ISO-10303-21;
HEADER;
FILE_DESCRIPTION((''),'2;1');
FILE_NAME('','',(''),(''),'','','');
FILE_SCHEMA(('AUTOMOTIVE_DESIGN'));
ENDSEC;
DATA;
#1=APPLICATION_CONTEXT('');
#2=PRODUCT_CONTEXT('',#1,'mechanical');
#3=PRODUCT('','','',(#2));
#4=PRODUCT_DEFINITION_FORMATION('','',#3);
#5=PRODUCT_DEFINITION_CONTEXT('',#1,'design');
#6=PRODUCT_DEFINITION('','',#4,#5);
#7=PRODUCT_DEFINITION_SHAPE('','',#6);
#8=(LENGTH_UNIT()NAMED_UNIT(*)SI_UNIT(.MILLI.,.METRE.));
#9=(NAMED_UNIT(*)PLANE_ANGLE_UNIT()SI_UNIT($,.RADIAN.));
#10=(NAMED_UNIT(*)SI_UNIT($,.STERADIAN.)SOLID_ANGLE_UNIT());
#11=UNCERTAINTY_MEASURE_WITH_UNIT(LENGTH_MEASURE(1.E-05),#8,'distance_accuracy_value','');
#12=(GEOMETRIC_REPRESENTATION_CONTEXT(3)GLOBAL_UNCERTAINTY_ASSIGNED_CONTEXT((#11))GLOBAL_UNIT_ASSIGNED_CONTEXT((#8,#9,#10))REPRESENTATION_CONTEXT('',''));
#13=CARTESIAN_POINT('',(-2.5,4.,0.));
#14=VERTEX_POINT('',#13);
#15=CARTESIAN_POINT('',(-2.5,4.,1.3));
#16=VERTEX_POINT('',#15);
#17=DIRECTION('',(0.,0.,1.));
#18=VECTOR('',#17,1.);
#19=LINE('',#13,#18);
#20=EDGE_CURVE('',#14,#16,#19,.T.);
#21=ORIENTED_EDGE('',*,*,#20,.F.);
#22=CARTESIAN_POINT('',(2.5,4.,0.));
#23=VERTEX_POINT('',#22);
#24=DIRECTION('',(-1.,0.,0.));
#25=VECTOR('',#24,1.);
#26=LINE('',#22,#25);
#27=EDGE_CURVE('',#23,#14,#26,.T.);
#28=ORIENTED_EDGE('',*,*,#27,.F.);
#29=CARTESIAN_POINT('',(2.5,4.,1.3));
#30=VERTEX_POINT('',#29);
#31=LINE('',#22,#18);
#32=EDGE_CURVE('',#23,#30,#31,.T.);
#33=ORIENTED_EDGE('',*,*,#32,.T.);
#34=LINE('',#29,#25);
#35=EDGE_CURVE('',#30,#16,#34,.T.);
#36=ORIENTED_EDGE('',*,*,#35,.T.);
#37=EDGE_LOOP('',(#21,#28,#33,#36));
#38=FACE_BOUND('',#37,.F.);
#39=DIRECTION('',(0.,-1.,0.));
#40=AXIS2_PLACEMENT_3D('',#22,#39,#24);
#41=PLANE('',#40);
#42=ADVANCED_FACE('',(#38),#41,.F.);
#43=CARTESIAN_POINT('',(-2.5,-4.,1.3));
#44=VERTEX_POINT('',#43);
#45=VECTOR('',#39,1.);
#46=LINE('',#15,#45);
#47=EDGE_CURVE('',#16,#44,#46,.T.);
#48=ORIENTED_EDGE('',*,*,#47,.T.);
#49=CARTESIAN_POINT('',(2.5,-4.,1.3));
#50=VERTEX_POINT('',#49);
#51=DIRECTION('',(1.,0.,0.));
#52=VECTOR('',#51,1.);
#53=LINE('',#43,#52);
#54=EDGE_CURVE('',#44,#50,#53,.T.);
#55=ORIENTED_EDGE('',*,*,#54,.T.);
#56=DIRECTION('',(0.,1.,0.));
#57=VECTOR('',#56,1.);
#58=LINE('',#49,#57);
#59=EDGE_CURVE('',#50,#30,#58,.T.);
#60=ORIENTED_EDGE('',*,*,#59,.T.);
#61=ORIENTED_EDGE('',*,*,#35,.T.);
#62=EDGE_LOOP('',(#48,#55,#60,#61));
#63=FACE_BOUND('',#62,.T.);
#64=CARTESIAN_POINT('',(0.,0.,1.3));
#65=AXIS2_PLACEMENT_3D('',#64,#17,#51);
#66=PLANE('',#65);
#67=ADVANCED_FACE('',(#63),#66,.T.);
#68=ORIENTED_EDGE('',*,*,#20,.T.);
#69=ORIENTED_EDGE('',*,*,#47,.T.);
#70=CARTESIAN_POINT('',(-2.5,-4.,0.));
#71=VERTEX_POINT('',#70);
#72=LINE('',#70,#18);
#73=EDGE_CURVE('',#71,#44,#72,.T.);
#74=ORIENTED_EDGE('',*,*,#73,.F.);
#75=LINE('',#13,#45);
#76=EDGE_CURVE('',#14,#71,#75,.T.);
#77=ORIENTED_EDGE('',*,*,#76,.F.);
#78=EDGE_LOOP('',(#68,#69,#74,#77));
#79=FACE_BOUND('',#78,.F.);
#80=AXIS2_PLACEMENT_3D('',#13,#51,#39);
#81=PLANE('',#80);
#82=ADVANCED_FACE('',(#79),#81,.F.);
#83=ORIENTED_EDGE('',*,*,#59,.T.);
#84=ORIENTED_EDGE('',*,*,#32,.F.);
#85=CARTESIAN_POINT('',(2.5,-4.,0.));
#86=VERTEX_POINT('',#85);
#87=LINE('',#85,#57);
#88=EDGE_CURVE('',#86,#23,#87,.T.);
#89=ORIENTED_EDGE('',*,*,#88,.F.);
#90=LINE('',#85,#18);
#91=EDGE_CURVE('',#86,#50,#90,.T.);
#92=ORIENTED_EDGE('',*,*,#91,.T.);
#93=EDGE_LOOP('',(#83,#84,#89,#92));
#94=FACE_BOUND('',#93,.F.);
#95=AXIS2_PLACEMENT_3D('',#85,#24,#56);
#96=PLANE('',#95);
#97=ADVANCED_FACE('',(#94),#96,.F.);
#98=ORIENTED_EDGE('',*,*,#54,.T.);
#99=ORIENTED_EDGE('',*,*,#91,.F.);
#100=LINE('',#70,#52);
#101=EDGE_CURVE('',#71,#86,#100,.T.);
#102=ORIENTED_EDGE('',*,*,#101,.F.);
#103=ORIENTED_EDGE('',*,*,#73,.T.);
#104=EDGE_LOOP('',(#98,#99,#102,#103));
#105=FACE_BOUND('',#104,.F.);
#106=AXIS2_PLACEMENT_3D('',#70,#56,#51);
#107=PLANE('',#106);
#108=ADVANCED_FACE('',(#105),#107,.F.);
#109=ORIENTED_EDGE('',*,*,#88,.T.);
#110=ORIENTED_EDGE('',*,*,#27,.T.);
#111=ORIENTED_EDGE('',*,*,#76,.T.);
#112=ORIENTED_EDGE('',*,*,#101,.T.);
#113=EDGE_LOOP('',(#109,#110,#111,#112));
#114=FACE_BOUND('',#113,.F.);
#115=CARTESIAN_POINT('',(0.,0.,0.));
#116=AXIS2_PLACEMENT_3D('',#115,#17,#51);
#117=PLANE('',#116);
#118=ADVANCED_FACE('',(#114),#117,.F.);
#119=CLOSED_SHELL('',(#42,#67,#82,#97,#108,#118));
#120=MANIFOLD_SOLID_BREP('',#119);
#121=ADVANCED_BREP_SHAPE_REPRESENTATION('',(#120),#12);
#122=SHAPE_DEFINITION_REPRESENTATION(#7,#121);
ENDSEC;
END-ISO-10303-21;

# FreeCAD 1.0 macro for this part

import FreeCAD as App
import Part
import Sketcher

V = App.Vector
Q = App.Units.Quantity

doc = App.newDocument("Part")
body = doc.addObject("PartDesign::Body", "Body")

# Sketch on XY plane
sketch1 = body.newObject("Sketcher::SketchObject", "Sketch")
sketch1.AttachmentSupport = (doc.getObject("XY_Plane"), [""])
sketch1.MapMode = "FlatFace"
sketch1.addGeometry([
    Part.LineSegment(V(2, -4, 0), V(2, 4, 0)),
    Part.LineSegment(V(2, 4, 0), V(-2, 4, 0)),
    Part.LineSegment(V(-2, 4, 0), V(-2, -4, 0)),
    Part.LineSegment(V(-2, -4, 0), V(2, -4, 0)),
], False)
sketch1.addConstraint([
    Sketcher.Constraint("Coincident", 0, 2, 1, 1),
    Sketcher.Constraint("Coincident", 1, 2, 2, 1),
    Sketcher.Constraint("Coincident", 2, 2, 3, 1),
    Sketcher.Constraint("Coincident", 3, 2, 0, 1),
    Sketcher.Constraint("Vertical", 0),
    Sketcher.Constraint("Horizontal", 1),
    Sketcher.Constraint("Vertical", 2),
    Sketcher.Constraint("Horizontal", 3),
    Sketcher.Constraint("Symmetric", 0, 2, 2, 2, -1, 1),
    Sketcher.Constraint("DistanceX", -1, 1, 0, 2, Q("2.5 mm")),
    Sketcher.Constraint("DistanceY", 0, 1, 0, 2, Q("8 mm")),
])
pad1 = body.newObject("PartDesign::Pad", "Pad")
pad1.Profile = sketch1
pad1.Length = 1.3

doc.recompute()
